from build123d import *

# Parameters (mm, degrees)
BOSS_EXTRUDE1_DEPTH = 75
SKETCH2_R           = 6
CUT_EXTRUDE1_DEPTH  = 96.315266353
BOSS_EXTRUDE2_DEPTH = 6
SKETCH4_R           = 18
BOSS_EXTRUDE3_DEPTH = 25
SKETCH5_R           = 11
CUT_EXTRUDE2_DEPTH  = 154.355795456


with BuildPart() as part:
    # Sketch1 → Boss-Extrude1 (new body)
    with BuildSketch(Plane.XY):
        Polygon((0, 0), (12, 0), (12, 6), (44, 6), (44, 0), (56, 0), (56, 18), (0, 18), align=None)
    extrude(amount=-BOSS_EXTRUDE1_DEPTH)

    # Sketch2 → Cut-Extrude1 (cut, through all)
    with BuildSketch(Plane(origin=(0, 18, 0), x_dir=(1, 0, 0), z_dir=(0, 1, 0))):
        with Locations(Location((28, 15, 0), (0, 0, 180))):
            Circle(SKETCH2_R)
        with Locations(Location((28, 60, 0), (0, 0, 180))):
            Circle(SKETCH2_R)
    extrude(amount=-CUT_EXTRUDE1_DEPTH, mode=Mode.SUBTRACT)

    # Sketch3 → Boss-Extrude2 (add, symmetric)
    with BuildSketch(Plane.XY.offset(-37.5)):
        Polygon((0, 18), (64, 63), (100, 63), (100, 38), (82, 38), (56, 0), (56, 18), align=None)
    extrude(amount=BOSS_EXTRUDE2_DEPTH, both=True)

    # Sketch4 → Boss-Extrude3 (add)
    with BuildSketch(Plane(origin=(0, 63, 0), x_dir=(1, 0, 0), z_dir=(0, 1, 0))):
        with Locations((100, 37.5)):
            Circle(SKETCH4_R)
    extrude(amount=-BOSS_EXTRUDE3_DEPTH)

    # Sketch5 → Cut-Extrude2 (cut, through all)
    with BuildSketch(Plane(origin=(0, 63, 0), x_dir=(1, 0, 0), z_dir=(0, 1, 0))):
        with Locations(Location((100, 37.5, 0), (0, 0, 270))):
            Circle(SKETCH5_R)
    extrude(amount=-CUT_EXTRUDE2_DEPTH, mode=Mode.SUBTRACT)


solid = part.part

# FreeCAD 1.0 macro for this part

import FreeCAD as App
import Part
import Sketcher

doc = App.newDocument("Part")
body = doc.addObject("PartDesign::Body", "Body")

sketch1 = body.newObject("Sketcher::SketchObject", "Sketch")
sketch1.AttachmentSupport = (doc.getObject("XY_Plane"), [""])
sketch1.MapMode = "FlatFace"
sketch1.addGeometry(Part.LineSegment(App.Vector(0, 0, 0), App.Vector(12, 0, 0)), False)
sketch1.addGeometry(Part.LineSegment(App.Vector(12, 0, 0), App.Vector(12, 6, 0)), False)
sketch1.addGeometry(Part.LineSegment(App.Vector(12, 6, 0), App.Vector(44, 6, 0)), False)
sketch1.addGeometry(Part.LineSegment(App.Vector(44, 6, 0), App.Vector(44, 0, 0)), False)
sketch1.addGeometry(Part.LineSegment(App.Vector(44, 0, 0), App.Vector(56, 0, 0)), False)
sketch1.addGeometry(Part.LineSegment(App.Vector(56, 0, 0), App.Vector(56, 18, 0)), False)
sketch1.addGeometry(Part.LineSegment(App.Vector(56, 18, 0), App.Vector(0, 18, 0)), False)
sketch1.addGeometry(Part.LineSegment(App.Vector(0, 18, 0), App.Vector(0, 0, 0)), False)
sketch1.addConstraint(Sketcher.Constraint("Coincident", 0, 2, 1, 1))
sketch1.addConstraint(Sketcher.Constraint("Coincident", 1, 2, 2, 1))
sketch1.addConstraint(Sketcher.Constraint("Coincident", 2, 2, 3, 1))
sketch1.addConstraint(Sketcher.Constraint("Coincident", 3, 2, 4, 1))
sketch1.addConstraint(Sketcher.Constraint("Coincident", 4, 2, 5, 1))
sketch1.addConstraint(Sketcher.Constraint("Coincident", 5, 2, 6, 1))
sketch1.addConstraint(Sketcher.Constraint("Coincident", 6, 2, 7, 1))
sketch1.addConstraint(Sketcher.Constraint("Coincident", 7, 2, 0, 1))
sketch1.addConstraint(Sketcher.Constraint("Horizontal", 0))
sketch1.addConstraint(Sketcher.Constraint("Vertical", 1))
sketch1.addConstraint(Sketcher.Constraint("Horizontal", 2))
sketch1.addConstraint(Sketcher.Constraint("Vertical", 3))
sketch1.addConstraint(Sketcher.Constraint("Horizontal", 4))
sketch1.addConstraint(Sketcher.Constraint("Vertical", 5))
sketch1.addConstraint(Sketcher.Constraint("Horizontal", 6))
sketch1.addConstraint(Sketcher.Constraint("Vertical", 7))
sketch1.addConstraint(Sketcher.Constraint("Coincident", 7, 2, -1, 1))
sketch1.addConstraint(Sketcher.Constraint("PointOnObject", 3, 2, -1))
sketch1.addConstraint(Sketcher.Constraint("Equal", 0, 4))
sketch1.addConstraint(Sketcher.Constraint("DistanceX", 0, 1, 0, 2, 12.0))
sketch1.addConstraint(Sketcher.Constraint("DistanceX", 2, 1, 2, 2, 32.0))
sketch1.addConstraint(Sketcher.Constraint("DistanceY", 1, 1, 1, 2, 6.0))
sketch1.addConstraint(Sketcher.Constraint("DistanceY", 5, 1, 5, 2, 18.0))
pad1 = body.newObject("PartDesign::Pad", "Pad")
pad1.Profile = sketch1
pad1.Length = 75
pad1.Reversed = True

sketch2 = body.newObject("Sketcher::SketchObject", "Sketch001")
sketch2.AttachmentSupport = (doc.getObject("XZ_Plane"), [""])
sketch2.MapMode = "FlatFace"
sketch2.AttachmentOffset = App.Placement(App.Vector(0, 0, -18), App.Rotation())
sketch2.addGeometry(Part.Circle(App.Vector(28, -15, 0), App.Vector(0, 0, 1), 6), False)
sketch2.addGeometry(Part.Circle(App.Vector(28, -60, 0), App.Vector(0, 0, 1), 6), False)
sketch2.addConstraint(Sketcher.Constraint("Equal", 0, 1))
sketch2.addConstraint(Sketcher.Constraint("Vertical", 0, 3, 1, 3))
sketch2.addConstraint(Sketcher.Constraint("Diameter", 0, 12.0))
sketch2.addConstraint(Sketcher.Constraint("DistanceX", -1, 1, 0, 3, 28.0))
sketch2.addConstraint(Sketcher.Constraint("DistanceY", 0, 3, -1, 1, 15.0))
sketch2.addConstraint(Sketcher.Constraint("DistanceY", 1, 3, -1, 1, 60.0))
pocket1 = body.newObject("PartDesign::Pocket", "Pocket")
pocket1.Profile = sketch2
pocket1.Type = "ThroughAll"
pocket1.Reversed = True

sketch3 = body.newObject("Sketcher::SketchObject", "Sketch002")
sketch3.AttachmentSupport = (doc.getObject("XY_Plane"), [""])
sketch3.MapMode = "FlatFace"
sketch3.AttachmentOffset = App.Placement(App.Vector(0, 0, -37.5), App.Rotation())
sketch3.addGeometry(Part.LineSegment(App.Vector(64, 63, 0), App.Vector(0, 18, 0)), False)
sketch3.addGeometry(Part.LineSegment(App.Vector(0, 18, 0), App.Vector(56, 18, 0)), False)
sketch3.addGeometry(Part.LineSegment(App.Vector(56, 18, 0), App.Vector(56, 0, 0)), False)
sketch3.addGeometry(Part.LineSegment(App.Vector(56, 0, 0), App.Vector(82, 38, 0)), False)
sketch3.addGeometry(Part.LineSegment(App.Vector(82, 38, 0), App.Vector(100, 38, 0)), False)
sketch3.addGeometry(Part.LineSegment(App.Vector(100, 38, 0), App.Vector(100, 63, 0)), False)
sketch3.addGeometry(Part.LineSegment(App.Vector(100, 63, 0), App.Vector(64, 63, 0)), False)
sketch3.addConstraint(Sketcher.Constraint("Coincident", 0, 2, 1, 1))
sketch3.addConstraint(Sketcher.Constraint("Coincident", 1, 2, 2, 1))
sketch3.addConstraint(Sketcher.Constraint("Coincident", 2, 2, 3, 1))
sketch3.addConstraint(Sketcher.Constraint("Coincident", 3, 2, 4, 1))
sketch3.addConstraint(Sketcher.Constraint("Coincident", 4, 2, 5, 1))
sketch3.addConstraint(Sketcher.Constraint("Coincident", 5, 2, 6, 1))
sketch3.addConstraint(Sketcher.Constraint("Coincident", 6, 2, 0, 1))
sketch3.addConstraint(Sketcher.Constraint("Horizontal", 1))
sketch3.addConstraint(Sketcher.Constraint("Vertical", 2))
sketch3.addConstraint(Sketcher.Constraint("Horizontal", 4))
sketch3.addConstraint(Sketcher.Constraint("Vertical", 5))
sketch3.addConstraint(Sketcher.Constraint("Horizontal", 6))
sketch3.addConstraint(Sketcher.Constraint("PointOnObject", 0, 2, -2))
sketch3.addConstraint(Sketcher.Constraint("PointOnObject", 2, 2, -1))
sketch3.addConstraint(Sketcher.Constraint("Equal", 4, 2))
sketch3.addConstraint(Sketcher.Constraint("DistanceX", 1, 1, 1, 2, 56.0))
sketch3.addConstraint(Sketcher.Constraint("DistanceX", 4, 1, 4, 2, 18.0))
sketch3.addConstraint(Sketcher.Constraint("DistanceX", 6, 2, 6, 1, 36.0))
sketch3.addConstraint(Sketcher.Constraint("DistanceY", 5, 1, 5, 2, 25.0))
sketch3.addConstraint(Sketcher.Constraint("DistanceX", -1, 1, 3, 2, 82.0))
sketch3.addConstraint(Sketcher.Constraint("DistanceY", -1, 1, 3, 2, 38.0))
pad2 = body.newObject("PartDesign::Pad", "Pad001")
pad2.Profile = sketch3
pad2.Length = 12
pad2.Midplane = True

sketch4 = body.newObject("Sketcher::SketchObject", "Sketch003")
sketch4.AttachmentSupport = (doc.getObject("XZ_Plane"), [""])
sketch4.MapMode = "FlatFace"
sketch4.AttachmentOffset = App.Placement(App.Vector(0, 0, -63), App.Rotation())
sketch4.addGeometry(Part.Circle(App.Vector(100, -38, 0), App.Vector(0, 0, 1), 18), False)
sketch4.addConstraint(Sketcher.Constraint("Diameter", 0, 36.0))
sketch4.addConstraint(Sketcher.Constraint("DistanceX", -1, 1, 0, 3, 100.0))
sketch4.addConstraint(Sketcher.Constraint("DistanceY", 0, 3, -1, 1, 37.5))
pad3 = body.newObject("PartDesign::Pad", "Pad002")
pad3.Profile = sketch4
pad3.Length = 25

sketch5 = body.newObject("Sketcher::SketchObject", "Sketch004")
sketch5.AttachmentSupport = (doc.getObject("XZ_Plane"), [""])
sketch5.MapMode = "FlatFace"
sketch5.AttachmentOffset = App.Placement(App.Vector(0, 0, -63), App.Rotation())
sketch5.addGeometry(Part.Circle(App.Vector(100, -38, 0), App.Vector(0, 0, 1), 11), False)
sketch5.addConstraint(Sketcher.Constraint("Diameter", 0, 22.0))
sketch5.addConstraint(Sketcher.Constraint("DistanceX", -1, 1, 0, 3, 100.0))
sketch5.addConstraint(Sketcher.Constraint("DistanceY", 0, 3, -1, 1, 37.5))
pocket2 = body.newObject("PartDesign::Pocket", "Pocket001")
pocket2.Profile = sketch5
pocket2.Type = "ThroughAll"
pocket2.Reversed = True

doc.recompute()
